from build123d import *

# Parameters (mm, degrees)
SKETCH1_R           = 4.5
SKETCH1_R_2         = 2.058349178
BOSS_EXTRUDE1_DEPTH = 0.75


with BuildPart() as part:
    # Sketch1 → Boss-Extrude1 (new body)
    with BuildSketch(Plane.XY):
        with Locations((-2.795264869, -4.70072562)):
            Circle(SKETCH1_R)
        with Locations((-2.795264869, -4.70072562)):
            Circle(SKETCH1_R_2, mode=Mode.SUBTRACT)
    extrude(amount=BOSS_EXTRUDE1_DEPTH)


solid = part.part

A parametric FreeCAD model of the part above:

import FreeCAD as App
import Part
import Sketcher
from FreeCAD import Vector
Q = App.Units.Quantity

doc = App.newDocument("Part")
body = doc.addObject("PartDesign::Body", "Body")

sketch1 = doc.addObject("Sketcher::SketchObject", "Sketch")
body.addObject(sketch1)
sketch1.AttachmentSupport = (doc.XY_Plane, [""])
sketch1.MapMode = "FlatFace"
sketch1.addGeometry(Part.Circle(Vector(-2.795265, -4.700726, 0), Vector(0, 0, 1), 4.5), False)
sketch1.addGeometry(Part.Circle(Vector(-2.795265, -4.700726, 0), Vector(0, 0, 1), 2.058349), False)
sketch1.addConstraint(Sketcher.Constraint("Coincident", 1, 3, 0, 3))
sketch1.addConstraint(Sketcher.Constraint("Diameter", 0, Q("9 mm")))
sketch1.addConstraint(Sketcher.Constraint("Diameter", 1, Q("4.116698 mm")))
sketch1.addConstraint(Sketcher.Constraint("DistanceX", 0, 3, -1, 1, Q("2.795265 mm")))
sketch1.addConstraint(Sketcher.Constraint("DistanceY", 0, 3, -1, 1, Q("4.700726 mm")))
pad1 = doc.addObject("PartDesign::Pad", "Pad")
body.addObject(pad1)
pad1.Profile = sketch1
pad1.Length = 0.75

doc.recompute()
